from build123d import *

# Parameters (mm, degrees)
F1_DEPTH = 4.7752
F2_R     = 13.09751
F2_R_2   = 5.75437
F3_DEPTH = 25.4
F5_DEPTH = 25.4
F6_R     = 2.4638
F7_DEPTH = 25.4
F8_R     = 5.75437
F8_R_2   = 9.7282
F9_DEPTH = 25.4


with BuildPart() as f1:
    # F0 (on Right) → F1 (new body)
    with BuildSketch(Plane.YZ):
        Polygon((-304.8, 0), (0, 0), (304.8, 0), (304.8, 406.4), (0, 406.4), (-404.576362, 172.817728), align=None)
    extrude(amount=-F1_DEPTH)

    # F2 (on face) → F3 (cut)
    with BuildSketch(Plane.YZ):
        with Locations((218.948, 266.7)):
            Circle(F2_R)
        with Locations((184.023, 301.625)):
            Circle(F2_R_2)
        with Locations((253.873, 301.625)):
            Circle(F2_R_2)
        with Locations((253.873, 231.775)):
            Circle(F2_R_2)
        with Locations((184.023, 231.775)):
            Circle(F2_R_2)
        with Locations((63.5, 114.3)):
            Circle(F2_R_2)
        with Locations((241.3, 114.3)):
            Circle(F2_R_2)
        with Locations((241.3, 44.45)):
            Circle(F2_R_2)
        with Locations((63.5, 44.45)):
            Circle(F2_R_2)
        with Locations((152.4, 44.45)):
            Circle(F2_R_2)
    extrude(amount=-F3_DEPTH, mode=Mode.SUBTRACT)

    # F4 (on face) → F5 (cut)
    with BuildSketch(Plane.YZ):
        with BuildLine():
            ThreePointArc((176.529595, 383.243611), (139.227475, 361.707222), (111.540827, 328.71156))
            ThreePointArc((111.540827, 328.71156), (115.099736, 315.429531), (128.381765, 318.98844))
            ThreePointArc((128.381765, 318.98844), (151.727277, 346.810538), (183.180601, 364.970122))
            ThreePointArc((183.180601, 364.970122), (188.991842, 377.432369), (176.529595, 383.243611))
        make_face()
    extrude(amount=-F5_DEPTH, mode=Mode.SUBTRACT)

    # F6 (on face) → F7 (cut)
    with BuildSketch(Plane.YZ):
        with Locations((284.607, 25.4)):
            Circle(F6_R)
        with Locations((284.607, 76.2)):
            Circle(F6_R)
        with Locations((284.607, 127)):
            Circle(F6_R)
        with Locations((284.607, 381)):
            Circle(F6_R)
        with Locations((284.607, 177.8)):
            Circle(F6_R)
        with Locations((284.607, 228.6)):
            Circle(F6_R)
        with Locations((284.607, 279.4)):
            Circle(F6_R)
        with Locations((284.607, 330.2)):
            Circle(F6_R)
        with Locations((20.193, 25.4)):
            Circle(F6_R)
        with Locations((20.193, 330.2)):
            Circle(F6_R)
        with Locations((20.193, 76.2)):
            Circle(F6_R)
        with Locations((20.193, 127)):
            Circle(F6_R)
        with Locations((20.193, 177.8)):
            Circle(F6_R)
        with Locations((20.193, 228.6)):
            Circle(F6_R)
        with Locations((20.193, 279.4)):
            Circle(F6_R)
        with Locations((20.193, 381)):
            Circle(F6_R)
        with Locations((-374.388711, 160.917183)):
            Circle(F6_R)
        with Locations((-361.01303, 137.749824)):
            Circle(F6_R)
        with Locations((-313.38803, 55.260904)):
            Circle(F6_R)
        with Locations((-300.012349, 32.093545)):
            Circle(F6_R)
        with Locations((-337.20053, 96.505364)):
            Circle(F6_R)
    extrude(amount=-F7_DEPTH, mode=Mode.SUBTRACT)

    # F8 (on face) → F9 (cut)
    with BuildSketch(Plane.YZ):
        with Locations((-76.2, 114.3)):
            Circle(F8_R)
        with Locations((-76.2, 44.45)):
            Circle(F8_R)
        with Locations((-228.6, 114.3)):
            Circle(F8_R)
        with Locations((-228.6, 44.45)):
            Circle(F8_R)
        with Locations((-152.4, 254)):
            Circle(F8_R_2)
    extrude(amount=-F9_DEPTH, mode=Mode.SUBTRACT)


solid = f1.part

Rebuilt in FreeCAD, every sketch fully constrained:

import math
import FreeCAD as App
import Part
import Sketcher
from FreeCAD import Vector
Q = App.Units.Quantity

doc = App.newDocument("Part")
body = doc.addObject("PartDesign::Body", "Body")

sketch1 = doc.addObject("Sketcher::SketchObject", "Sketch")
body.addObject(sketch1)
sketch1.AttachmentSupport = (doc.YZ_Plane, [""])
sketch1.MapMode = "FlatFace"
sketch1.addGeometry([
    Part.LineSegment(Vector(-304.8, 0, 0), Vector(304.8, 0, 0)),
    Part.LineSegment(Vector(304.8, 0, 0), Vector(304.8, 406.4, 0)),
    Part.LineSegment(Vector(304.8, 406.4, 0), Vector(0, 406.4, 0)),
    Part.LineSegment(Vector(0, 406.4, 0), Vector(-404.576362, 172.817728, 0)),
    Part.LineSegment(Vector(-404.576362, 172.817728, 0), Vector(-304.8, 0, 0)),
], False)
sketch1.addConstraint([
    Sketcher.Constraint("Coincident", 0, 2, 1, 1),
    Sketcher.Constraint("Coincident", 1, 2, 2, 1),
    Sketcher.Constraint("Coincident", 2, 2, 3, 1),
    Sketcher.Constraint("Coincident", 3, 2, 4, 1),
    Sketcher.Constraint("Coincident", 4, 2, 0, 1),
    Sketcher.Constraint("Horizontal", 0),
    Sketcher.Constraint("Vertical", 1),
    Sketcher.Constraint("Horizontal", 2),
    Sketcher.Constraint("Symmetric", 0, 2, 4, 2, -1, 1),
    Sketcher.Constraint("PointOnObject", 2, 2, -2),
    Sketcher.Constraint("Perpendicular", 3, 4),
    Sketcher.Constraint("DistanceX", 0, 1, 0, 2, Q("24 in")),
    Sketcher.Constraint("DistanceY", 1, 1, 1, 2, Q("16 in")),
    Sketcher.Constraint("Angle", 3, Q("-150 deg")),
])
pad1 = doc.addObject("PartDesign::Pad", "Pad")
body.addObject(pad1)
pad1.Profile = sketch1
pad1.Length = Q("0.188 in")
pad1.Reversed = True

sketch2 = doc.addObject("Sketcher::SketchObject", "Sketch001")
body.addObject(sketch2)
sketch2.AttachmentSupport = (doc.YZ_Plane, [""])
sketch2.MapMode = "FlatFace"
sketch2.addGeometry([
    Part.Circle(Vector(218.948, 266.7, 0), Vector(0, 0, 1), 13.09751),
    Part.Circle(Vector(184.023, 301.625, 0), Vector(0, 0, 1), 5.75437),
    Part.Circle(Vector(253.873, 301.625, 0), Vector(0, 0, 1), 5.75437),
    Part.Circle(Vector(253.873, 231.775, 0), Vector(0, 0, 1), 5.75437),
    Part.Circle(Vector(184.023, 231.775, 0), Vector(0, 0, 1), 5.75437),
    Part.Circle(Vector(63.5, 114.3, 0), Vector(0, 0, 1), 5.75437),
    Part.Circle(Vector(241.3, 114.3, 0), Vector(0, 0, 1), 5.75437),
    Part.Circle(Vector(241.3, 44.45, 0), Vector(0, 0, 1), 5.75437),
    Part.Circle(Vector(63.5, 44.45, 0), Vector(0, 0, 1), 5.75437),
    Part.Circle(Vector(152.4, 44.45, 0), Vector(0, 0, 1), 5.75437),
], False)
sketch2.addConstraint([
    Sketcher.Constraint("Equal", 1, 2),
    Sketcher.Constraint("Equal", 2, 3),
    Sketcher.Constraint("Equal", 3, 4),
    Sketcher.Constraint("Equal", 4, 5),
    Sketcher.Constraint("Equal", 5, 6),
    Sketcher.Constraint("Equal", 6, 7),
    Sketcher.Constraint("Equal", 7, 8),
    Sketcher.Constraint("Equal", 8, 9),
    Sketcher.Constraint("Horizontal", 1, 3, 2, 3),
    Sketcher.Constraint("Horizontal", 3, 3, 4, 3),
    Sketcher.Constraint("Horizontal", 5, 3, 6, 3),
    Sketcher.Constraint("Horizontal", 7, 3, 8, 3),
    Sketcher.Constraint("Horizontal", 8, 3, 9, 3),
    Sketcher.Constraint("Vertical", 2, 3, 3, 3),
    Sketcher.Constraint("Vertical", 1, 3, 4, 3),
    Sketcher.Constraint("Vertical", 6, 3, 7, 3),
    Sketcher.Constraint("Vertical", 5, 3, 8, 3),
    Sketcher.Constraint("DistanceX", -1, 1, 9, 3, Q("6 in")),
    Sketcher.Constraint("DistanceY", 5, 3, 0, 3, Q("6 in")),
    Sketcher.Constraint("DistanceX", 5, 3, 6, 3, Q("7 in")),
    Sketcher.Constraint("Diameter", 0, Q("1.0313 in")),
    Sketcher.Constraint("Diameter", 1, Q("0.4531 in")),
    Sketcher.Constraint("DistanceY", -1, 1, 0, 3, Q("10.5 in")),
    Sketcher.Constraint("DistanceX", -1, 1, 5, 3, Q("2.5 in")),
    Sketcher.Constraint("DistanceX", -1, 1, 0, 3, Q("8.62 in")),
    Sketcher.Constraint("DistanceY", -1, 1, 7, 3, Q("1.75 in")),
    Sketcher.Constraint("DistanceX", 1, 3, 2, 3, Q("2.75 in")),
    Sketcher.Constraint("DistanceY", 3, 3, 2, 3, Q("2.75 in")),
    Sketcher.Constraint("DistanceX", -1, 1, 1, 3, Q("7.245 in")),
    Sketcher.Constraint("DistanceY", -1, 1, 1, 3, Q("11.875 in")),
])
pocket1 = doc.addObject("PartDesign::Pocket", "Pocket")
body.addObject(pocket1)
pocket1.Profile = sketch2
pocket1.Length = Q("1 in")

sketch3 = doc.addObject("Sketcher::SketchObject", "Sketch002")
body.addObject(sketch3)
sketch3.AttachmentSupport = (doc.YZ_Plane, [""])
sketch3.MapMode = "FlatFace"
sketch3.addGeometry([
    Part.ArcOfCircle(Part.Circle(Vector(218.948001, 266.699998, 0), Vector(0, 0, 1), 124.023122), math.radians(110), math.radians(150)),
    Part.ArcOfCircle(Part.Circle(Vector(119.961296, 323.85, 0), Vector(0, 0, 1), 9.72312), math.radians(150), math.radians(330)),
    Part.ArcOfCircle(Part.Circle(Vector(218.947994, 266.700006, 0), Vector(0, 0, 1), 104.576872), math.radians(109.999998), math.radians(150.000001)),
    Part.ArcOfCircle(Part.Circle(Vector(179.855097, 374.106866, 0), Vector(0, 0, 1), 9.72312), math.radians(-69.999996), math.radians(109.999996)),
], False)
sketch3.addConstraint([
    Sketcher.Constraint("Tangent", 0, 2, 1, 1),
    Sketcher.Constraint("Tangent", 1, 2, 2, 2),
    Sketcher.Constraint("Tangent", 2, 1, 3, 1),
    Sketcher.Constraint("Tangent", 3, 2, 0, 1),
    Sketcher.Constraint("Equal", 1, 3),
    Sketcher.Constraint("DistanceY", -1, 1, 0, 3, Q("10.4999999 in")),
    Sketcher.Constraint("Radius", 0, Q("4.8828001 in")),
    Sketcher.Constraint("Radius", 1, Q("0.3828 in")),
    Sketcher.Constraint("DistanceX", -1, 1, 0, 3, Q("8.62 in")),
    Sketcher.Constraint("DistanceY", -1, 1, 1, 3, Q("12.75 in")),
    Sketcher.Constraint("DistanceX", -1, 1, 1, 2, Q("5.0544002 in")),
    Sketcher.Constraint("DistanceX", -1, 1, 2, 1, Q("183.180601 mm")),
])
pocket2 = doc.addObject("PartDesign::Pocket", "Pocket001")
body.addObject(pocket2)
pocket2.Profile = sketch3
pocket2.Length = Q("1 in")

sketch4 = doc.addObject("Sketcher::SketchObject", "Sketch003")
body.addObject(sketch4)
sketch4.AttachmentSupport = (doc.YZ_Plane, [""])
sketch4.MapMode = "FlatFace"
sketch4.addGeometry([
    Part.Circle(Vector(284.607, 25.4, 0), Vector(0, 0, 1), 2.4638),
    Part.Circle(Vector(284.607, 76.2, 0), Vector(0, 0, 1), 2.4638),
    Part.Circle(Vector(284.607, 127, 0), Vector(0, 0, 1), 2.4638),
    Part.Circle(Vector(284.607, 381, 0), Vector(0, 0, 1), 2.4638),
    Part.Circle(Vector(284.607, 177.8, 0), Vector(0, 0, 1), 2.4638),
    Part.Circle(Vector(284.607, 228.6, 0), Vector(0, 0, 1), 2.4638),
    Part.Circle(Vector(284.607, 279.4, 0), Vector(0, 0, 1), 2.4638),
    Part.Circle(Vector(284.607, 330.2, 0), Vector(0, 0, 1), 2.4638),
    Part.Circle(Vector(20.193, 25.4, 0), Vector(0, 0, 1), 2.4638),
    Part.Circle(Vector(20.193, 330.2, 0), Vector(0, 0, 1), 2.4638),
    Part.Circle(Vector(20.193, 76.2, 0), Vector(0, 0, 1), 2.4638),
    Part.Circle(Vector(20.193, 127, 0), Vector(0, 0, 1), 2.4638),
    Part.Circle(Vector(20.193, 177.8, 0), Vector(0, 0, 1), 2.4638),
    Part.Circle(Vector(20.193, 228.6, 0), Vector(0, 0, 1), 2.4638),
    Part.Circle(Vector(20.193, 279.4, 0), Vector(0, 0, 1), 2.4638),
    Part.Circle(Vector(20.193, 381, 0), Vector(0, 0, 1), 2.4638),
    Part.Circle(Vector(-374.388711, 160.917183, 0), Vector(0, 0, 1), 2.4638),
    Part.Circle(Vector(-361.01303, 137.749824, 0), Vector(0, 0, 1), 2.4638),
    Part.Circle(Vector(-313.38803, 55.260904, 0), Vector(0, 0, 1), 2.4638),
    Part.Circle(Vector(-300.012349, 32.093545, 0), Vector(0, 0, 1), 2.4638),
    Part.Circle(Vector(-337.20053, 96.505364, 0), Vector(0, 0, 1), 2.4638),
], False)
sketch4.addConstraint([
    Sketcher.Constraint("Equal", 0, 1),
    Sketcher.Constraint("Equal", 1, 2),
    Sketcher.Constraint("Equal", 2, 3),
    Sketcher.Constraint("Equal", 3, 4),
    Sketcher.Constraint("Equal", 4, 5),
    Sketcher.Constraint("Equal", 5, 6),
    Sketcher.Constraint("Equal", 6, 7),
    Sketcher.Constraint("Equal", 7, 8),
    Sketcher.Constraint("Equal", 8, 9),
    Sketcher.Constraint("Equal", 9, 10),
    Sketcher.Constraint("Equal", 10, 11),
    Sketcher.Constraint("Equal", 11, 12),
    Sketcher.Constraint("Equal", 12, 13),
    Sketcher.Constraint("Equal", 13, 14),
    Sketcher.Constraint("Equal", 14, 15),
    Sketcher.Constraint("Equal", 15, 16),
    Sketcher.Constraint("Equal", 16, 17),
    Sketcher.Constraint("Equal", 17, 18),
    Sketcher.Constraint("Equal", 18, 19),
    Sketcher.Constraint("Equal", 19, 20),
    Sketcher.Constraint("Horizontal", 0, 3, 8, 3),
    Sketcher.Constraint("Horizontal", 7, 3, 9, 3),
    Sketcher.Constraint("Horizontal", 1, 3, 10, 3),
    Sketcher.Constraint("Horizontal", 2, 3, 11, 3),
    Sketcher.Constraint("Horizontal", 4, 3, 12, 3),
    Sketcher.Constraint("Horizontal", 5, 3, 13, 3),
    Sketcher.Constraint("Horizontal", 6, 3, 14, 3),
    Sketcher.Constraint("Horizontal", 3, 3, 15, 3),
    Sketcher.Constraint("Vertical", 0, 3, 1, 3),
    Sketcher.Constraint("Vertical", 1, 3, 2, 3),
    Sketcher.Constraint("Vertical", 2, 3, 3, 3),
    Sketcher.Constraint("Vertical", 3, 3, 4, 3),
    Sketcher.Constraint("Vertical", 4, 3, 5, 3),
    Sketcher.Constraint("Vertical", 5, 3, 6, 3),
    Sketcher.Constraint("Vertical", 6, 3, 7, 3),
    Sketcher.Constraint("Vertical", 8, 3, 9, 3),
    Sketcher.Constraint("Vertical", 9, 3, 10, 3),
    Sketcher.Constraint("Vertical", 10, 3, 11, 3),
    Sketcher.Constraint("Vertical", 11, 3, 12, 3),
    Sketcher.Constraint("Vertical", 12, 3, 13, 3),
    Sketcher.Constraint("Vertical", 13, 3, 14, 3),
    Sketcher.Constraint("Vertical", 14, 3, 15, 3),
    Sketcher.Constraint("Diameter", 0, Q("0.194 in")),
    Sketcher.Constraint("DistanceY", -1, 1, 0, 3, Q("1 in")),
    Sketcher.Constraint("DistanceY", -1, 1, 1, 3, Q("3 in")),
    Sketcher.Constraint("DistanceY", -1, 1, 2, 3, Q("5 in")),
    Sketcher.Constraint("DistanceY", -1, 1, 3, 3, Q("15 in")),
    Sketcher.Constraint("DistanceY", -1, 1, 4, 3, Q("7 in")),
    Sketcher.Constraint("DistanceY", -1, 1, 5, 3, Q("9 in")),
    Sketcher.Constraint("DistanceY", -1, 1, 6, 3, Q("11 in")),
    Sketcher.Constraint("DistanceY", -1, 1, 7, 3, Q("13 in")),
    Sketcher.Constraint("DistanceX", 8, 3, 0, 3, Q("10.41 in")),
    Sketcher.Constraint("DistanceX", -1, 1, 0, 3, Q("11.205 in")),
    Sketcher.Constraint("DistanceX", 17, 3, 18, 3, Q("1.875 in")),
    Sketcher.Constraint("DistanceX", 17, 3, 20, 3, Q("0.9375 in")),
    Sketcher.Constraint("DistanceX", 16, 3, -1, 1, Q("374.388711 mm")),
    Sketcher.Constraint("DistanceX", 17, 3, -1, 1, Q("361.01303 mm")),
    Sketcher.Constraint("DistanceX", 19, 3, -1, 1, Q("300.012349 mm")),
    Sketcher.Constraint("DistanceY", 17, 3, 16, 3, Q("23.167359 mm")),
    Sketcher.Constraint("DistanceY", 18, 3, 17, 3, Q("82.48892 mm")),
    Sketcher.Constraint("DistanceY", 19, 3, 18, 3, Q("23.167359 mm")),
    Sketcher.Constraint("DistanceY", 20, 3, 17, 3, Q("41.24446 mm")),
    Sketcher.Constraint("DistanceY", -1, 1, 16, 3, Q("160.917183 mm")),
])
pocket3 = doc.addObject("PartDesign::Pocket", "Pocket002")
body.addObject(pocket3)
pocket3.Profile = sketch4
pocket3.Length = Q("1 in")

sketch5 = doc.addObject("Sketcher::SketchObject", "Sketch004")
body.addObject(sketch5)
sketch5.AttachmentSupport = (doc.YZ_Plane, [""])
sketch5.MapMode = "FlatFace"
sketch5.addGeometry([
    Part.Circle(Vector(-76.2, 114.3, 0), Vector(0, 0, 1), 5.75437),
    Part.Circle(Vector(-76.2, 44.45, 0), Vector(0, 0, 1), 5.75437),
    Part.Circle(Vector(-228.6, 114.3, 0), Vector(0, 0, 1), 5.75437),
    Part.Circle(Vector(-228.6, 44.45, 0), Vector(0, 0, 1), 5.75437),
    Part.Circle(Vector(-152.4, 254, 0), Vector(0, 0, 1), 9.7282),
], False)
sketch5.addConstraint([
    Sketcher.Constraint("Equal", 0, 1),
    Sketcher.Constraint("Equal", 1, 2),
    Sketcher.Constraint("Equal", 2, 3),
    Sketcher.Constraint("Horizontal", 0, 3, 2, 3),
    Sketcher.Constraint("Horizontal", 1, 3, 3, 3),
    Sketcher.Constraint("Vertical", 0, 3, 1, 3),
    Sketcher.Constraint("Vertical", 2, 3, 3, 3),
    Sketcher.Constraint("Diameter", 4, Q("0.766 in")),
    Sketcher.Constraint("DistanceX", 0, 3, -1, 1, Q("3 in")),
    Sketcher.Constraint("DistanceX", 2, 3, -1, 1, Q("9 in")),
    Sketcher.Constraint("DistanceX", 4, 3, -1, 1, Q("6 in")),
    Sketcher.Constraint("DistanceY", -1, 1, 4, 3, Q("10 in")),
    Sketcher.Constraint("Diameter", 0, Q("0.4531 in")),
    Sketcher.Constraint("DistanceY", -1, 1, 0, 3, Q("4.5 in")),
    Sketcher.Constraint("DistanceY", -1, 1, 1, 3, Q("1.75 in")),
])
pocket4 = doc.addObject("PartDesign::Pocket", "Pocket003")
body.addObject(pocket4)
pocket4.Profile = sketch5
pocket4.Length = Q("1 in")

doc.recompute()
